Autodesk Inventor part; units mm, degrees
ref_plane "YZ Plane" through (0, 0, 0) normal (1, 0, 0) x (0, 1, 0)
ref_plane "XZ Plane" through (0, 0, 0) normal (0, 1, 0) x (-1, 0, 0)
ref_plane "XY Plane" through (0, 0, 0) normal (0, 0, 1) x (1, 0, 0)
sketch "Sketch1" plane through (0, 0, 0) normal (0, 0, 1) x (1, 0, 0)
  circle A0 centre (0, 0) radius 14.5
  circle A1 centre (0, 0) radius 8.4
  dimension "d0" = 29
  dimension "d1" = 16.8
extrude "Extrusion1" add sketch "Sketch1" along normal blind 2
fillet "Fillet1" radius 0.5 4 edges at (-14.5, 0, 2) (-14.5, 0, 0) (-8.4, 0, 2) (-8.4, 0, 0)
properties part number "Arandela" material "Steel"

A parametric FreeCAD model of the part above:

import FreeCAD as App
import Part
import Sketcher

V = App.Vector
Q = App.Units.Quantity


def edges_at(feature, points):
    """Names of the edges that pass closest to the given points."""
    edges = feature.Shape.Edges
    near = lambda p: min(range(len(edges)), key=lambda i: edges[i].distToShape(Part.Vertex(*p))[0])
    return sorted({f"Edge{near(p) + 1}" for p in points})

doc = App.newDocument("Part")
params = doc.addObject("Spreadsheet::Sheet", "Params")
for row, (alias, value) in enumerate([
    ("sketch1_diameter", "29 mm"),
    ("sketch1_diameter2", "16.8 mm"),
    ("pad1_length", "2 mm"),
    ("fillet_radius", "0.5 mm"),
], start=1):
    params.set(f"A{row}", alias)
    params.set(f"B{row}", "=" + value)
    params.setAlias(f"B{row}", alias)

body = doc.addObject("PartDesign::Body", "Body")

# Sketch on XY plane
sketch1 = body.newObject("Sketcher::SketchObject", "Sketch")
sketch1.AttachmentSupport = (doc.getObject("XY_Plane"), [""])
sketch1.MapMode = "FlatFace"
sketch1.addGeometry([
    Part.Circle(V(0, 0, 0), V(0, 0, 1), 14),
    Part.Circle(V(0, 0, 0), V(0, 0, 1), 8),
], False)
sketch1.addConstraint([
    Sketcher.Constraint("Coincident", 0, 3, -1, 1),
    Sketcher.Constraint("Coincident", 1, 3, -1, 1),
    Sketcher.Constraint("Diameter", 0, Q("29 mm")),
    Sketcher.Constraint("Diameter", 1, Q("16.8 mm")),
])
sketch1.setExpression("Constraints[2]", "Params.sketch1_diameter")
sketch1.setExpression("Constraints[3]", "Params.sketch1_diameter2")
pad1 = body.newObject("PartDesign::Pad", "Pad")
pad1.Profile = sketch1
pad1.setExpression("Length", "Params.pad1_length")
doc.recompute()

fillet = body.newObject("PartDesign::Fillet", "Fillet")
fillet.Base = (pad1, edges_at(pad1, [
    (-14.5, 0, 2),
    (-14.5, 0, 0),
    (-8.4, 0, 2),
    (-8.4, 0, 0),
]))
fillet.setExpression("Radius", "Params.fillet_radius")

doc.recompute()
